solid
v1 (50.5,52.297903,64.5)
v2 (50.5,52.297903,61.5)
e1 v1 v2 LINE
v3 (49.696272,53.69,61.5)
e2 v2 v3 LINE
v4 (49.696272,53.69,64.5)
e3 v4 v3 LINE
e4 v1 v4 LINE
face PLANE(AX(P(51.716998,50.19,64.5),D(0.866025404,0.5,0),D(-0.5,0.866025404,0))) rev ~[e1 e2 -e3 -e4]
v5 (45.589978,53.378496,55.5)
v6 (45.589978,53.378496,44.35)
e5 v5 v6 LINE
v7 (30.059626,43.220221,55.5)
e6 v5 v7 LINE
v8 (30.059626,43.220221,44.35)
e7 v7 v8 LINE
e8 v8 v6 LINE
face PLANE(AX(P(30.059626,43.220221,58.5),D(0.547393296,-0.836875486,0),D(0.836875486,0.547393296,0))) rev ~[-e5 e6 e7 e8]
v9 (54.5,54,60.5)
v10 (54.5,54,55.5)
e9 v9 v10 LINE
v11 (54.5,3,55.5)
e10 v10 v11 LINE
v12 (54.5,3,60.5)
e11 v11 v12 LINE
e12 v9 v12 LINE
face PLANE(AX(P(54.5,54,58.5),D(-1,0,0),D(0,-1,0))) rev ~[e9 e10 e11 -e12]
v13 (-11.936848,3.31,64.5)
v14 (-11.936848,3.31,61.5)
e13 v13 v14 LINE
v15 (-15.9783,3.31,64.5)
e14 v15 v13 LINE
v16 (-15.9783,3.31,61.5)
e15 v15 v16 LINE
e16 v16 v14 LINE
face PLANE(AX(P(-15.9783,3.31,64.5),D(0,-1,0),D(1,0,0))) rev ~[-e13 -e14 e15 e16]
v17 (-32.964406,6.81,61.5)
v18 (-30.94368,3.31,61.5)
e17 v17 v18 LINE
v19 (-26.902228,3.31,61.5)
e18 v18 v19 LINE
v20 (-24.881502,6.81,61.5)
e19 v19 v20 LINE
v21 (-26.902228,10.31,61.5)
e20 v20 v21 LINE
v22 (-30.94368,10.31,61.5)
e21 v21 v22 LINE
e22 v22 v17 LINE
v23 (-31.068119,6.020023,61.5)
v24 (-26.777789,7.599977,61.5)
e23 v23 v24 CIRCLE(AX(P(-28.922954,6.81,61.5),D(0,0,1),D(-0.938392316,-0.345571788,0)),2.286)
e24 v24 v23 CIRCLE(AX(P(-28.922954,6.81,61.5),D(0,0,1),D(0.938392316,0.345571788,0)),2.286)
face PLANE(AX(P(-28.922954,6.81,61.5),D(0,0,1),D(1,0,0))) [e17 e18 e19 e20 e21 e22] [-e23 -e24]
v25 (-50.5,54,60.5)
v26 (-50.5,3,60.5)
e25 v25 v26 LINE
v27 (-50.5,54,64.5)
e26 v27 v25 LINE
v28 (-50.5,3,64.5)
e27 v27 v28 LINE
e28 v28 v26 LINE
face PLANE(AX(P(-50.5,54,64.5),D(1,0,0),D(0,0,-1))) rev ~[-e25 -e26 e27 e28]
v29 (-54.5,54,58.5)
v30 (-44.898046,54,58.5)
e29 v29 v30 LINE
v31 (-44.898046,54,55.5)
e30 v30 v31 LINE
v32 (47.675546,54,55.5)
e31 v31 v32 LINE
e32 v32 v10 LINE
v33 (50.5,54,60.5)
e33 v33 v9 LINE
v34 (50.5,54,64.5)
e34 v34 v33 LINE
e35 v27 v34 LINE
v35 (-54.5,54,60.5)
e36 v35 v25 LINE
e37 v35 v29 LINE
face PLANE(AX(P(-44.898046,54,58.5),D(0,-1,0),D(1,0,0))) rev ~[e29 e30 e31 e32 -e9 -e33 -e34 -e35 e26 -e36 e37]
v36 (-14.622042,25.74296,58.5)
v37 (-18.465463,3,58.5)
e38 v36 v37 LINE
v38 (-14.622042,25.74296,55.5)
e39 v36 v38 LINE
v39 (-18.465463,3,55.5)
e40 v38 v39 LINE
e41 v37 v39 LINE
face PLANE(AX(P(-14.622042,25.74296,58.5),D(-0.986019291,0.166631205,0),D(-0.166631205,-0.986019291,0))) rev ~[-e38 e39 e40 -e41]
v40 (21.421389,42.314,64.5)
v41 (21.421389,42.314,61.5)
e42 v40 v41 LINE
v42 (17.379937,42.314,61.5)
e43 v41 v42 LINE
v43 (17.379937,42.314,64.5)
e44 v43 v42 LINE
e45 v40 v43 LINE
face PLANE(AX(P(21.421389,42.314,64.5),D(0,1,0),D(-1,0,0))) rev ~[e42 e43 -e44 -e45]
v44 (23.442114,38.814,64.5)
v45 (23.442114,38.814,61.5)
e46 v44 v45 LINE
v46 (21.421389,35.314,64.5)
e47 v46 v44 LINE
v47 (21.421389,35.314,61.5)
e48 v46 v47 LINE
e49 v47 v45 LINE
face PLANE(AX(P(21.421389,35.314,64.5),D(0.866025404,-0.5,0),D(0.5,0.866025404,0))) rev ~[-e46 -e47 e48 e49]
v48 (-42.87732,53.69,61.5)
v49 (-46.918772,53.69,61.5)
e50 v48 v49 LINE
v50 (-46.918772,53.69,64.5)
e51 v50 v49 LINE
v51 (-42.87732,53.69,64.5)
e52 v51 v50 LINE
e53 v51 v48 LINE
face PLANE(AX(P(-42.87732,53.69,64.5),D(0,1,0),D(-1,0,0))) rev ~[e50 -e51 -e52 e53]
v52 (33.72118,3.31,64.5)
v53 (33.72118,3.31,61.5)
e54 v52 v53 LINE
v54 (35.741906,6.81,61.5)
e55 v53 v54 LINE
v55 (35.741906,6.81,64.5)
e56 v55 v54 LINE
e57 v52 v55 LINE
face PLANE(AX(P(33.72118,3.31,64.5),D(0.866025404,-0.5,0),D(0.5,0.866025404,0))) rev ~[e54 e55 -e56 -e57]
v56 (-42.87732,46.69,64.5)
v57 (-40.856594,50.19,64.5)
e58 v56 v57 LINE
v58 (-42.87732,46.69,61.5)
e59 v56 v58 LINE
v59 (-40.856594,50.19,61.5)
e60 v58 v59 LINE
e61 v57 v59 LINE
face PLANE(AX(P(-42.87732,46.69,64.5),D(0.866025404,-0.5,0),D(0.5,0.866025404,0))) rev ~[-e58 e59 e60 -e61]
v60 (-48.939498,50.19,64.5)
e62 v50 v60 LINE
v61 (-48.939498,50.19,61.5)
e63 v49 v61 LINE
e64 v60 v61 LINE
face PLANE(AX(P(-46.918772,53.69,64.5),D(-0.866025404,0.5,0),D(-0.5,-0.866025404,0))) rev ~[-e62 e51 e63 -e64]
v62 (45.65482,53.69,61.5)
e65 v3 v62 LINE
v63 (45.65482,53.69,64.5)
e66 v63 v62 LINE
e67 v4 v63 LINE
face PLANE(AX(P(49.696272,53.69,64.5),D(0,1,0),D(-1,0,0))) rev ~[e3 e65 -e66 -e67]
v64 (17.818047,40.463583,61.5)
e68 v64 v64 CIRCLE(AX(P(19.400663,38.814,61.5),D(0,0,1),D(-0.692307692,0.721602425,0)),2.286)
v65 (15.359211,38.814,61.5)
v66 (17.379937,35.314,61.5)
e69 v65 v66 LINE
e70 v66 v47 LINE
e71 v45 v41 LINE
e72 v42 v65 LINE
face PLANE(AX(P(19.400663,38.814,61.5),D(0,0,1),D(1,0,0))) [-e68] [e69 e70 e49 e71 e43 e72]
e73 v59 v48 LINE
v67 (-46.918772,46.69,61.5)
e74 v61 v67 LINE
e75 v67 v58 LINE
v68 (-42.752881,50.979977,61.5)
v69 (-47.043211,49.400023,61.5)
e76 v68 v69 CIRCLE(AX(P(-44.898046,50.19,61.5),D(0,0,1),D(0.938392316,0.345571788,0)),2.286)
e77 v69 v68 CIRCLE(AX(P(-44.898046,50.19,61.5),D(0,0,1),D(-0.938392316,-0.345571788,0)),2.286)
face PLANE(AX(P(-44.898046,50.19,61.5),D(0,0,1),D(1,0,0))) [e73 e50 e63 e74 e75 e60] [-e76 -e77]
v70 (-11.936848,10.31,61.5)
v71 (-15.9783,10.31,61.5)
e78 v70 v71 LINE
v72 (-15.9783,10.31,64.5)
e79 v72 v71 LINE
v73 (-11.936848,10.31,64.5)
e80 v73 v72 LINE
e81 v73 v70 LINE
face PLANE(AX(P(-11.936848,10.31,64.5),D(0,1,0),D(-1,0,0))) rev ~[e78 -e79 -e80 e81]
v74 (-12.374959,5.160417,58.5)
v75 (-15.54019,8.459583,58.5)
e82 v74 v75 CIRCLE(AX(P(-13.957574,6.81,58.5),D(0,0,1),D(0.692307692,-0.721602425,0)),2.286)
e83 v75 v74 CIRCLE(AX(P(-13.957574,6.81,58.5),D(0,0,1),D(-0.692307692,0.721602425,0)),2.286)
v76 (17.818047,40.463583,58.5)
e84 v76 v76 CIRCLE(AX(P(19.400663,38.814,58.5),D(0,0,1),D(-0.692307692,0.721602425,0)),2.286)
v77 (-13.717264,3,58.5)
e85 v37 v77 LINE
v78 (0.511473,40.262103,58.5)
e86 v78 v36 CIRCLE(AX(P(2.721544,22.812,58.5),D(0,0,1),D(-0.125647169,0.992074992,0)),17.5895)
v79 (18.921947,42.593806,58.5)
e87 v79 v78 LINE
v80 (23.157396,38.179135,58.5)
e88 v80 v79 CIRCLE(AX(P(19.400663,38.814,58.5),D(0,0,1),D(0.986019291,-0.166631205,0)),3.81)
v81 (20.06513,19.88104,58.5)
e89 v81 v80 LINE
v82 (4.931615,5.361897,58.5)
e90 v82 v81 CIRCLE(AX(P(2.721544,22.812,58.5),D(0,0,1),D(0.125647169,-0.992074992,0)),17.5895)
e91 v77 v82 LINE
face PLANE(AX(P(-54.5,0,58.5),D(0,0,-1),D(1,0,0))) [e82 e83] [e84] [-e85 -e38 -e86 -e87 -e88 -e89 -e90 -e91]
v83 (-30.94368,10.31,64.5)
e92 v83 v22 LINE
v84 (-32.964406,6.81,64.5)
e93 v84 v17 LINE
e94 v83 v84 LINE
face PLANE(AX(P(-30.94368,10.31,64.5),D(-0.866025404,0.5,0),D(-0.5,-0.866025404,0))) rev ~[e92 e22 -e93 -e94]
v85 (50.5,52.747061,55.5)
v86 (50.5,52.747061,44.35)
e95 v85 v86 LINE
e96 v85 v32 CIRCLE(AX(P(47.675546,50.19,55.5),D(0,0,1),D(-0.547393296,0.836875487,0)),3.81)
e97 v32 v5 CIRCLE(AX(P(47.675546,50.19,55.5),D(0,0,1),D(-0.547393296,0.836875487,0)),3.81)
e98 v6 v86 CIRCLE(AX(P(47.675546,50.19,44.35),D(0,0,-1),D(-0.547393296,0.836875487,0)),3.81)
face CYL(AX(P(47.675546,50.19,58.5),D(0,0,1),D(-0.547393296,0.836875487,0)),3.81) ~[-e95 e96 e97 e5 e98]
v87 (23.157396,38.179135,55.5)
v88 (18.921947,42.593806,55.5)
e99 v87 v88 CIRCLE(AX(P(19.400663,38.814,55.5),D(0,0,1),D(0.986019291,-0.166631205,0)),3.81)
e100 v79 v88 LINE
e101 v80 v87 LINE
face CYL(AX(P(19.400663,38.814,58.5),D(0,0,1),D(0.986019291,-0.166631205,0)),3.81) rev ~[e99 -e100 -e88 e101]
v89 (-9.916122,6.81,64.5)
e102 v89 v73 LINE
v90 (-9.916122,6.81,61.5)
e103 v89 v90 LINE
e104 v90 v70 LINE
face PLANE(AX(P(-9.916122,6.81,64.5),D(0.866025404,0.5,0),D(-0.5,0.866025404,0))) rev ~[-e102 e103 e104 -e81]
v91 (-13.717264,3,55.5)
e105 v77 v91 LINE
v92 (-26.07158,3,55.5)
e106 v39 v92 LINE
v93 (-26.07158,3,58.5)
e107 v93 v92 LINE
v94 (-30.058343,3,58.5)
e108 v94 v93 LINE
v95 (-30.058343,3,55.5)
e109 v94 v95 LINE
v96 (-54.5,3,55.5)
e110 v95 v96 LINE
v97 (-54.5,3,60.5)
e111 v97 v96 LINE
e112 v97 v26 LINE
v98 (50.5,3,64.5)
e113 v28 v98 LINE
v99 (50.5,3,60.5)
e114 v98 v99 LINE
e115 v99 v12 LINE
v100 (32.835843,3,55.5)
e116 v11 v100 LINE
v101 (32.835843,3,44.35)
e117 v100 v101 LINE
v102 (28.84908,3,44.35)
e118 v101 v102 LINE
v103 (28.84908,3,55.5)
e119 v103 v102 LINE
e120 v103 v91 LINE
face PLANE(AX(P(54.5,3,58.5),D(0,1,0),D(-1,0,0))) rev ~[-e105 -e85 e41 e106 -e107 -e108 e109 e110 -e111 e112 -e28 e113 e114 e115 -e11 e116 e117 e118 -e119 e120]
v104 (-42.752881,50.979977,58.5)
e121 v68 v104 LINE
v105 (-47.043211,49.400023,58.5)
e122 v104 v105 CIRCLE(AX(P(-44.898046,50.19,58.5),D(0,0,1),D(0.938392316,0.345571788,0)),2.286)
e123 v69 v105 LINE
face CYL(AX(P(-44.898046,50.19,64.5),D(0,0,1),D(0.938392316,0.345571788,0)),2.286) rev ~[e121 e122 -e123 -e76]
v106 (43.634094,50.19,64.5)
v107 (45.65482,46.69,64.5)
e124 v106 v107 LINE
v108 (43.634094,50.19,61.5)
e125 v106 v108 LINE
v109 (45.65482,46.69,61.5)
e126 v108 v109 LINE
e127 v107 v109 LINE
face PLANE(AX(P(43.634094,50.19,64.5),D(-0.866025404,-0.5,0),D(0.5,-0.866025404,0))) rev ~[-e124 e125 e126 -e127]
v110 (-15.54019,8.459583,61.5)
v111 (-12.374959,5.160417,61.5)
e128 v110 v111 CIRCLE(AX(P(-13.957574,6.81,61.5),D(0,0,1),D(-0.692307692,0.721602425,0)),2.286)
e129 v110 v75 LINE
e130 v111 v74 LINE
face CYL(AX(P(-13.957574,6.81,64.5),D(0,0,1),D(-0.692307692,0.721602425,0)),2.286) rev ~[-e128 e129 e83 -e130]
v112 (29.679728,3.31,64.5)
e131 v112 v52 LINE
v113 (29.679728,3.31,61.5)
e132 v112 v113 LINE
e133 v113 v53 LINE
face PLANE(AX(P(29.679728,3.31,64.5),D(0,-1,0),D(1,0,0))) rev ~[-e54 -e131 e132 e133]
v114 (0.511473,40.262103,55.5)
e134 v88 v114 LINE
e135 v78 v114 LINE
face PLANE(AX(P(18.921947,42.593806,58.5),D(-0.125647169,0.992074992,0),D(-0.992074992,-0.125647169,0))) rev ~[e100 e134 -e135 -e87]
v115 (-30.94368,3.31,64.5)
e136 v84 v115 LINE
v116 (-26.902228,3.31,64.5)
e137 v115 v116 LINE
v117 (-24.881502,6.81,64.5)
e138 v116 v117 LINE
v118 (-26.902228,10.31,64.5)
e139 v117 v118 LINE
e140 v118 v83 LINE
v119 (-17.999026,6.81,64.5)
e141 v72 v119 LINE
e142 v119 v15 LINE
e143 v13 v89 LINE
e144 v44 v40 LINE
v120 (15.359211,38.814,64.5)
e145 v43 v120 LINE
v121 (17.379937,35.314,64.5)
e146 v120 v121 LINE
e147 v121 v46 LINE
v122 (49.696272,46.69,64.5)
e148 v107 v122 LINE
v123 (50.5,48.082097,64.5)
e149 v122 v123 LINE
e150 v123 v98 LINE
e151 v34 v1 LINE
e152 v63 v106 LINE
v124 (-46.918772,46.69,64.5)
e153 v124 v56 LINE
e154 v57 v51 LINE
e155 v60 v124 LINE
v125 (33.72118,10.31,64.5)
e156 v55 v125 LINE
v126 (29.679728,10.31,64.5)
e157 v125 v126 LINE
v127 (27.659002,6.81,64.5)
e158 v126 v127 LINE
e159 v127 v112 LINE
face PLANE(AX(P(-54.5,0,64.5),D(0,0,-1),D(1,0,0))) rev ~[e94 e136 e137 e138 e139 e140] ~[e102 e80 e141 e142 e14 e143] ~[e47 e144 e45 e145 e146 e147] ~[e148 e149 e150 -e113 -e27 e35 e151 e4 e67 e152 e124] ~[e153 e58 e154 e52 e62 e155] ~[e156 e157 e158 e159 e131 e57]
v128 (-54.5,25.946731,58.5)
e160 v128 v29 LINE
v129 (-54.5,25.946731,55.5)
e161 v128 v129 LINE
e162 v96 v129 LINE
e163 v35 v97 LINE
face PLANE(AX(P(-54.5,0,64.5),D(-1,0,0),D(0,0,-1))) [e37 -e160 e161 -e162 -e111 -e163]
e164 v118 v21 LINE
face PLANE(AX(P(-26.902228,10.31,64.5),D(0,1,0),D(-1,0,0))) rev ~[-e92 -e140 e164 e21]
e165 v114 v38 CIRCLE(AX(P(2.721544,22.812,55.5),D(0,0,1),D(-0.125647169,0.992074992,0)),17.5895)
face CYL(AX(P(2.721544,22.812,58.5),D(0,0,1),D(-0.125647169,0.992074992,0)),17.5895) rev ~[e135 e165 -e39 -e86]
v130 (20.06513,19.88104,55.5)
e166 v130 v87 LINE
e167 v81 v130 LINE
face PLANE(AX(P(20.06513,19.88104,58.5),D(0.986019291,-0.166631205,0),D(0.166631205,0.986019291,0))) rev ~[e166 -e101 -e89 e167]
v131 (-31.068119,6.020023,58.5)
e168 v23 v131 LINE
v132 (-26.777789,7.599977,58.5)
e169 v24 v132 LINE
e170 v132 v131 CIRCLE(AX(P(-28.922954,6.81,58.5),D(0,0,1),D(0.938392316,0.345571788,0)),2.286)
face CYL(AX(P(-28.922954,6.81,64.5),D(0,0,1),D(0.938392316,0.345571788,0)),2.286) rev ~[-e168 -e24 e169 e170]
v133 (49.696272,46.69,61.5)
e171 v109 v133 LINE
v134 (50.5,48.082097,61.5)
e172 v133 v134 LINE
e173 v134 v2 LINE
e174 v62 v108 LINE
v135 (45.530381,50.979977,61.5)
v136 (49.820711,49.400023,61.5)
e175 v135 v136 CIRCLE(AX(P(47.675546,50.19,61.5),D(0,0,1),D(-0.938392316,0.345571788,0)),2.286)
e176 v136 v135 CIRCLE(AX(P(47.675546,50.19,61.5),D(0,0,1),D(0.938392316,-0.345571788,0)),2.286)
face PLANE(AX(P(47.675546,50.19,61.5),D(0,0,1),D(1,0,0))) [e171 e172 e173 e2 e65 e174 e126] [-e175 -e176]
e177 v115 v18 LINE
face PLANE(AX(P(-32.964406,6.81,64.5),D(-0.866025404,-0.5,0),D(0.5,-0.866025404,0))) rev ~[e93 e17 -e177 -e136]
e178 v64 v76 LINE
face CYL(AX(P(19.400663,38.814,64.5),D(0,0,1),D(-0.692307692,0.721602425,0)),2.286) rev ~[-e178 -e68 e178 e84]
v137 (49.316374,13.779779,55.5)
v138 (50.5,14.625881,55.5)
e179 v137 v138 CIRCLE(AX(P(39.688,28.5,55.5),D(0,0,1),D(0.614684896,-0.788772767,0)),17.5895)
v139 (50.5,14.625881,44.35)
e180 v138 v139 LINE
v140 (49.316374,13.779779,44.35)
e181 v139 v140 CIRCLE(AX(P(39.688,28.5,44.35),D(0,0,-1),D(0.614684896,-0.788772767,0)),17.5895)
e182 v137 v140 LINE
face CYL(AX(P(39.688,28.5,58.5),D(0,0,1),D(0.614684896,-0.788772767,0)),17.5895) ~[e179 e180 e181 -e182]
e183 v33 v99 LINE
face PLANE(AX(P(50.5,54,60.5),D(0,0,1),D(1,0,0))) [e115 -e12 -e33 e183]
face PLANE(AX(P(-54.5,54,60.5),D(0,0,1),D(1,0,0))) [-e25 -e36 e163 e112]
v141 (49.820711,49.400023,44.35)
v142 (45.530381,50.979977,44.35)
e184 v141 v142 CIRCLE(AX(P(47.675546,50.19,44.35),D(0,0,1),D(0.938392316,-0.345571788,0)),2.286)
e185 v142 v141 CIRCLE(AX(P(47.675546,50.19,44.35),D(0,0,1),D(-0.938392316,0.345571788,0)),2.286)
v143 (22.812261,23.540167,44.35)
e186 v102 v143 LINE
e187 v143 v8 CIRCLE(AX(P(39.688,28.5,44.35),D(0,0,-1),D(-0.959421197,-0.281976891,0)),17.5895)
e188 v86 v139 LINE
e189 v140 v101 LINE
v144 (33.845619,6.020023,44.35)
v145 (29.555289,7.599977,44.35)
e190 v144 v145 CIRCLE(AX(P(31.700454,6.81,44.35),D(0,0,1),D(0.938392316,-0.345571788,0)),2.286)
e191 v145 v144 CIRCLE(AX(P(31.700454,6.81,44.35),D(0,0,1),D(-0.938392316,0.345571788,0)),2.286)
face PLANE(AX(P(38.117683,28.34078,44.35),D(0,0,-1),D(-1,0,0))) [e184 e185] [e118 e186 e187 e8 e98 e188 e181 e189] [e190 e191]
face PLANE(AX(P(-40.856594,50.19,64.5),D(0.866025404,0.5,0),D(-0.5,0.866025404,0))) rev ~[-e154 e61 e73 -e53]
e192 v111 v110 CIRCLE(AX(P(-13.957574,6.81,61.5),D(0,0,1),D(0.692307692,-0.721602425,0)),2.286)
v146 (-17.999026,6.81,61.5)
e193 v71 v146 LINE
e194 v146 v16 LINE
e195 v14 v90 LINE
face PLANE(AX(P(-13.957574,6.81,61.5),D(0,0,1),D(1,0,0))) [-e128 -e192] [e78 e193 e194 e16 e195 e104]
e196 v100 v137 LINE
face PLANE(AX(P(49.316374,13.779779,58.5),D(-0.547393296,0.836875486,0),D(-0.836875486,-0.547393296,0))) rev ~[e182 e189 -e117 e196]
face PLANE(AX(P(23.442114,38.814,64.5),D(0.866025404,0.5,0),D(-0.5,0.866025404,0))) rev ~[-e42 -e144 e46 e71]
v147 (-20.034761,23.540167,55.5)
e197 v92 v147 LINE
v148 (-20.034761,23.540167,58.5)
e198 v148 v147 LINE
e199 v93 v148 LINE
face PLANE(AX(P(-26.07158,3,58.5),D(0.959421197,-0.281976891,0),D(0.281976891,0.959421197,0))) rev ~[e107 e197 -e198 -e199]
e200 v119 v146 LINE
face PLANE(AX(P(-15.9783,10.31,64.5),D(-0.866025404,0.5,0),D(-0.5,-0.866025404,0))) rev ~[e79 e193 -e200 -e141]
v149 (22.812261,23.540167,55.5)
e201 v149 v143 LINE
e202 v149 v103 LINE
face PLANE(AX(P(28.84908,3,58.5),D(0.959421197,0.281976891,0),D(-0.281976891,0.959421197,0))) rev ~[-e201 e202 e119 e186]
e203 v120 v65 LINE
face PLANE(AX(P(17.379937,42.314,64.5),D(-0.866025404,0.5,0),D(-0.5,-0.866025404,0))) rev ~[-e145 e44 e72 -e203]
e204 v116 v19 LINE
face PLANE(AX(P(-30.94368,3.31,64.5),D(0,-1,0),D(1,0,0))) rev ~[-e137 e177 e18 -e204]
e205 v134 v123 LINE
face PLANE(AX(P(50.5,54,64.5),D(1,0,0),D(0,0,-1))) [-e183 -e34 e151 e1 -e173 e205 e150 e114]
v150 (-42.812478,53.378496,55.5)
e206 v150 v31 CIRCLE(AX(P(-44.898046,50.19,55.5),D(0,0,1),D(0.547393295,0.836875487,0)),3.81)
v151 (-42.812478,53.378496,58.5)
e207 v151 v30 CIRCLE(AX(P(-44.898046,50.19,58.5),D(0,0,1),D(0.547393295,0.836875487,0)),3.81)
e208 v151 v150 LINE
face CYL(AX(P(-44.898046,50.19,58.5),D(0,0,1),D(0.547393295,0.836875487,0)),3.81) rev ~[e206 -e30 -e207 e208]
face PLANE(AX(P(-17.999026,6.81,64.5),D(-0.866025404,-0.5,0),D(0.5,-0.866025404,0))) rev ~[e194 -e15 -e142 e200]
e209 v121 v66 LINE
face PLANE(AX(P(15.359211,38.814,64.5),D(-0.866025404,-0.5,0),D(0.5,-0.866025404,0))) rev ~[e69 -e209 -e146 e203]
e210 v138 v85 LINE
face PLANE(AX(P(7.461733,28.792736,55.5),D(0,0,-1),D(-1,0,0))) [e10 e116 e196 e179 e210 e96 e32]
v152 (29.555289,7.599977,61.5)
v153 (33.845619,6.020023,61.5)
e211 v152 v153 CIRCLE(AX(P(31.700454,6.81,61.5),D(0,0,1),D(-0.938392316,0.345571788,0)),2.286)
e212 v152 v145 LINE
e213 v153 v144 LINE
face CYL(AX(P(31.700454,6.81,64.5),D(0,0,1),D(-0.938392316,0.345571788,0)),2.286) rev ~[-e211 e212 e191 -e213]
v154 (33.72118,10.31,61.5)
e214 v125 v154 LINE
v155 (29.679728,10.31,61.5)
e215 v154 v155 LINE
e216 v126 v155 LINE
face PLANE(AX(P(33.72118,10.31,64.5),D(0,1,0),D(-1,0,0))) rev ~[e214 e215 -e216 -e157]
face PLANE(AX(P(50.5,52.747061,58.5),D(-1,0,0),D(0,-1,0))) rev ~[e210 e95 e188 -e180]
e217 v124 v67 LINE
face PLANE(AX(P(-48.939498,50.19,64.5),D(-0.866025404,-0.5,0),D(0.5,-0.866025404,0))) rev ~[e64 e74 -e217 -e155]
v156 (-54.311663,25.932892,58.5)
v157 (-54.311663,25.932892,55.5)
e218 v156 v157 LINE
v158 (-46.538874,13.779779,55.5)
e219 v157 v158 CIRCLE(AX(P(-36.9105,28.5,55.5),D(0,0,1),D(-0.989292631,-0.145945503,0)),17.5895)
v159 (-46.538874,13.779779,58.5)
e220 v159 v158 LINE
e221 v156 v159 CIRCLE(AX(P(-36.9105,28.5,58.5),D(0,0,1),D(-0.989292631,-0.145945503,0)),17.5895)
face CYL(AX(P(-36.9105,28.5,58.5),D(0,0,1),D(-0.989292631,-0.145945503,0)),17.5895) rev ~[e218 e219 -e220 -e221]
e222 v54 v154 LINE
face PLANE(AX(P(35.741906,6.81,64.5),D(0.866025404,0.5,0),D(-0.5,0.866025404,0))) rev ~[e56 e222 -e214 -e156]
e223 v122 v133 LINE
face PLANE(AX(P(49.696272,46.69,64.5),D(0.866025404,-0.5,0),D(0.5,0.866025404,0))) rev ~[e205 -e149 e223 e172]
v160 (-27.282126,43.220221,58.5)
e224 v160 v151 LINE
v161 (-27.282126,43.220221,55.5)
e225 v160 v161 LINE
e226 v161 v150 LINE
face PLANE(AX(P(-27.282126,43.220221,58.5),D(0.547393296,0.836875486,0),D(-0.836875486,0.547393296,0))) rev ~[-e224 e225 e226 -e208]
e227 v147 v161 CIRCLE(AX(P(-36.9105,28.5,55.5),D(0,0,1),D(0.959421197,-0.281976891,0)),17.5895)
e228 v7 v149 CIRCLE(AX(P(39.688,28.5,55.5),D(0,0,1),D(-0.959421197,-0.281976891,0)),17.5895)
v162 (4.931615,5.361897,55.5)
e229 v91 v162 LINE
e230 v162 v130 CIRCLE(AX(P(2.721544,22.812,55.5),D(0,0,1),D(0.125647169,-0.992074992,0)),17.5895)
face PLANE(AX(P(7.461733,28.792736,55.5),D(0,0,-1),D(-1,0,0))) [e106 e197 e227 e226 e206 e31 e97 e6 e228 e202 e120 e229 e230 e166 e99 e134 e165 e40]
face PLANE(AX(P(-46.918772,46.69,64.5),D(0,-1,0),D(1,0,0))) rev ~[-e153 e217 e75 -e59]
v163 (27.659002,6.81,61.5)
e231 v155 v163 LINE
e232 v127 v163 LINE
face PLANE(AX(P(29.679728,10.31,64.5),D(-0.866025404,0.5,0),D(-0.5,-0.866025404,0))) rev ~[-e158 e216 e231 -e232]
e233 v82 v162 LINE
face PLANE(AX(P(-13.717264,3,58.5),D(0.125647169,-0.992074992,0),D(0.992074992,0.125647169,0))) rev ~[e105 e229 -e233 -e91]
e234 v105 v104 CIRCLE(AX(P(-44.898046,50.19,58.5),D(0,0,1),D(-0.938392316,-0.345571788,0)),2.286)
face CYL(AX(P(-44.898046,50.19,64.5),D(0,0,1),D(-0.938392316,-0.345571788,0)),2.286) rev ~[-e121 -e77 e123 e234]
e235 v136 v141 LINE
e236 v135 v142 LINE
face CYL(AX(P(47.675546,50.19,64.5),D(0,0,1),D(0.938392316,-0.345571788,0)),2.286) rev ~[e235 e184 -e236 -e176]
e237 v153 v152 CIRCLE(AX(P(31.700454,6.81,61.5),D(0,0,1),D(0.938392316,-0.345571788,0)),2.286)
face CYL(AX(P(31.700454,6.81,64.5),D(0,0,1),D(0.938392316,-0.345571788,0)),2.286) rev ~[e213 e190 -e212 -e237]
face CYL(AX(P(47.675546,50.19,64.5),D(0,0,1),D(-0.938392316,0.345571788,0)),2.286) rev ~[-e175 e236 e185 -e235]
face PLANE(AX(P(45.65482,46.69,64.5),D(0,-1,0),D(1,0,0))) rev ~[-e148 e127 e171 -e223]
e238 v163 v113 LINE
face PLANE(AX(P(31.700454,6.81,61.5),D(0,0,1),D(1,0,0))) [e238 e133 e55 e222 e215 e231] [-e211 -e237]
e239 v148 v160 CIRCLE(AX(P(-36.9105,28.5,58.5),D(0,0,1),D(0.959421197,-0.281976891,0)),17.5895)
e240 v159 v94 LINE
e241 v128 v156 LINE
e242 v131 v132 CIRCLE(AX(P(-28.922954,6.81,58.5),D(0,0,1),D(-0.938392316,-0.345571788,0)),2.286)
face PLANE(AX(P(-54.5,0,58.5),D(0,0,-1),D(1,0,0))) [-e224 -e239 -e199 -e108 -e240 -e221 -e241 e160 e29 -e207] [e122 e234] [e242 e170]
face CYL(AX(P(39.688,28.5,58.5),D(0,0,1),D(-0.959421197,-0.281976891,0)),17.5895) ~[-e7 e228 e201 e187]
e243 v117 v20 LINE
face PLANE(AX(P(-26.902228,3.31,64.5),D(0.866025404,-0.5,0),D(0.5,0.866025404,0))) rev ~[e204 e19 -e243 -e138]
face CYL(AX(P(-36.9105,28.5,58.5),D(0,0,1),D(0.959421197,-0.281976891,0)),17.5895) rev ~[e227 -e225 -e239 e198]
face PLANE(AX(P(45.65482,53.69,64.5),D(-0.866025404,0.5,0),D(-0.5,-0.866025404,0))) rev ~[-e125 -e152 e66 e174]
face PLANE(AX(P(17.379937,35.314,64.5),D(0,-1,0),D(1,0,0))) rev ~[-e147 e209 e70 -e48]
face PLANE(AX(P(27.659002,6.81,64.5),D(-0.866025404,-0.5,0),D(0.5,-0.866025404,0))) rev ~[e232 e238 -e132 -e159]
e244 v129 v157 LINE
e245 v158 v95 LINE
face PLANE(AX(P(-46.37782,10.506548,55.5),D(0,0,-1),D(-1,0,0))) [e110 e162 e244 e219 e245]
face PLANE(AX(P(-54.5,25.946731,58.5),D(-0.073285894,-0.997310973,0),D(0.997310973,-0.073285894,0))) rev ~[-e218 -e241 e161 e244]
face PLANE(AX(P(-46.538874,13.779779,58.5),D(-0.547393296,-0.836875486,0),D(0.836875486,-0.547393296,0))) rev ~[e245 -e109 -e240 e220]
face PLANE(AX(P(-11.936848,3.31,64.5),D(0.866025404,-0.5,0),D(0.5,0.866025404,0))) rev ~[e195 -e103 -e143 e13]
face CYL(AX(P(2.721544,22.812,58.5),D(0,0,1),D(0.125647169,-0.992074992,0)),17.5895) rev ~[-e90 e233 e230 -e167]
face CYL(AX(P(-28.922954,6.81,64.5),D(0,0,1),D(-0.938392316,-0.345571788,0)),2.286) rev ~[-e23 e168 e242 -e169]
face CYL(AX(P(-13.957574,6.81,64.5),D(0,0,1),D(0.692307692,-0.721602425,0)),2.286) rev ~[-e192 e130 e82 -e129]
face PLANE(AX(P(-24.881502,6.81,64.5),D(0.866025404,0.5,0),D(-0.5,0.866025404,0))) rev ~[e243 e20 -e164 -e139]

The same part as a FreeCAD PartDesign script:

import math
import FreeCAD as App
import Part
import Sketcher
Q = App.Units.Quantity

doc = App.newDocument("Part")
body = doc.addObject("PartDesign::Body", "Body")

sketch1 = body.newObject("Sketcher::SketchObject", "Sketch")
sketch1.AttachmentSupport = (doc.getObject("XZ_Plane"), [""])
sketch1.MapMode = "FlatFace"
sketch1.addGeometry([
    Part.LineSegment(App.Vector(-54.5, 58.5, 0), App.Vector(-54.5, 64.5, 0)),
    Part.LineSegment(App.Vector(-54.5, 64.5, 0), App.Vector(54.5, 64.5, 0)),
    Part.LineSegment(App.Vector(54.5, 64.5, 0), App.Vector(54.5, 58.5, 0)),
    Part.LineSegment(App.Vector(54.5, 58.5, 0), App.Vector(-54.5, 58.5, 0)),
], False)
sketch1.addConstraint([
    Sketcher.Constraint("Coincident", 0, 2, 1, 1),
    Sketcher.Constraint("Coincident", 1, 2, 2, 1),
    Sketcher.Constraint("Coincident", 2, 2, 3, 1),
    Sketcher.Constraint("Coincident", 3, 2, 0, 1),
    Sketcher.Constraint("Vertical", 0),
    Sketcher.Constraint("Horizontal", 1),
    Sketcher.Constraint("Vertical", 2),
    Sketcher.Constraint("Horizontal", 3),
    Sketcher.Constraint("DistanceX", 1, 1, 1, 2, Q("109 mm")),
    Sketcher.Constraint("DistanceY", 0, 1, 0, 2, Q("6 mm")),
    Sketcher.Constraint("DistanceX", 0, 2, -1, 1, Q("54.5 mm")),
    Sketcher.Constraint("DistanceY", -1, 1, 0, 2, Q("64.5 mm")),
])
pad1 = body.newObject("PartDesign::Pad", "Pad")
pad1.Profile = sketch1
pad1.Length = 54
pad1.Reversed = True

sketch2 = body.newObject("Sketcher::SketchObject", "Sketch001")
sketch2.AttachmentSupport = (doc.getObject("XY_Plane"), [""])
sketch2.MapMode = "FlatFace"
sketch2.AttachmentOffset = App.Placement(App.Vector(0, 0, 58.5), App.Rotation())
sketch2.addGeometry([
    Part.LineSegment(App.Vector(-44.898046, 54, 0), App.Vector(54.5, 54, 0)),
    Part.LineSegment(App.Vector(54.5, 54, 0), App.Vector(54.5, 3, 0)),
    Part.LineSegment(App.Vector(54.5, 3, 0), App.Vector(-13.717264, 3, 0)),
    Part.LineSegment(App.Vector(-13.717264, 3, 0), App.Vector(4.931615, 5.361897, 0)),
    Part.ArcOfCircle(Part.Circle(App.Vector(2.721544, 22.812, 0), App.Vector(0, 0, 1), 17.5895), math.radians(-82.781869), math.radians(-9.592008)),
    Part.LineSegment(App.Vector(20.06513, 19.88104, 0), App.Vector(23.157396, 38.179135, 0)),
    Part.ArcOfCircle(Part.Circle(App.Vector(19.400663, 38.814, 0), App.Vector(0, 0, 1), 3.81), math.radians(-9.592008), math.radians(97.218131)),
    Part.LineSegment(App.Vector(18.921947, 42.593806, 0), App.Vector(0.511473, 40.262103, 0)),
    Part.ArcOfCircle(Part.Circle(App.Vector(2.721544, 22.812, 0), App.Vector(0, 0, 1), 17.5895), math.radians(97.218131), math.radians(170.407992)),
    Part.LineSegment(App.Vector(-14.622042, 25.74296, 0), App.Vector(-18.465463, 3, 0)),
    Part.LineSegment(App.Vector(-18.465463, 3, 0), App.Vector(-26.07158, 3, 0)),
    Part.LineSegment(App.Vector(-26.07158, 3, 0), App.Vector(-20.034761, 23.540167, 0)),
    Part.ArcOfCircle(Part.Circle(App.Vector(-36.9105, 28.5, 0), App.Vector(0, 0, 1), 17.5895), math.radians(-16.378227), math.radians(56.811635)),
    Part.LineSegment(App.Vector(-27.282126, 43.220221, 0), App.Vector(-42.812478, 53.378496, 0)),
    Part.ArcOfCircle(Part.Circle(App.Vector(-44.898046, 50.19, 0), App.Vector(0, 0, 1), 3.81), math.radians(56.811635), math.radians(90)),
    Part.LineSegment(App.Vector(-54.5, 3, 0), App.Vector(-54.5, 25.946731, 0)),
    Part.LineSegment(App.Vector(-54.5, 25.946731, 0), App.Vector(-54.311663, 25.932892, 0)),
    Part.ArcOfCircle(Part.Circle(App.Vector(-36.9105, 28.5, 0), App.Vector(0, 0, 1), 17.5895), math.radians(-171.607965), math.radians(-123.188365)),
    Part.LineSegment(App.Vector(-46.538874, 13.779779, 0), App.Vector(-30.058343, 3, 0)),
    Part.LineSegment(App.Vector(-30.058343, 3, 0), App.Vector(-54.5, 3, 0)),
], False)
sketch2.addConstraint([
    Sketcher.Constraint("Coincident", 0, 2, 1, 1),
    Sketcher.Constraint("Coincident", 1, 2, 2, 1),
    Sketcher.Constraint("Coincident", 2, 2, 3, 1),
    Sketcher.Constraint("Tangent", 3, 2, 4, 1),
    Sketcher.Constraint("Tangent", 4, 2, 5, 1),
    Sketcher.Constraint("Tangent", 5, 2, 6, 1),
    Sketcher.Constraint("Tangent", 6, 2, 7, 1),
    Sketcher.Constraint("Tangent", 7, 2, 8, 1),
    Sketcher.Constraint("Tangent", 8, 2, 9, 1),
    Sketcher.Constraint("Coincident", 9, 2, 10, 1),
    Sketcher.Constraint("Coincident", 10, 2, 11, 1),
    Sketcher.Constraint("Tangent", 11, 2, 12, 1),
    Sketcher.Constraint("Tangent", 12, 2, 13, 1),
    Sketcher.Constraint("Tangent", 13, 2, 14, 1),
    Sketcher.Constraint("Tangent", 14, 2, 0, 1),
    Sketcher.Constraint("Coincident", 15, 2, 16, 1),
    Sketcher.Constraint("Coincident", 16, 2, 17, 1),
    Sketcher.Constraint("Tangent", 17, 2, 18, 1),
    Sketcher.Constraint("Coincident", 18, 2, 19, 1),
    Sketcher.Constraint("Coincident", 19, 2, 15, 1),
    Sketcher.Constraint("Horizontal", 0),
    Sketcher.Constraint("Vertical", 1),
    Sketcher.Constraint("Horizontal", 2),
    Sketcher.Constraint("Horizontal", 10),
    Sketcher.Constraint("Vertical", 15),
    Sketcher.Constraint("Horizontal", 19),
    Sketcher.Constraint("Coincident", 8, 3, 4, 3),
    Sketcher.Constraint("Coincident", 17, 3, 12, 3),
    Sketcher.Constraint("Equal", 4, 8),
    Sketcher.Constraint("Equal", 8, 12),
    Sketcher.Constraint("Equal", 6, 14),
    Sketcher.Constraint("Equal", 12, 17),
    Sketcher.Constraint("Symmetric", 1, 2, 19, 2, -2),
    Sketcher.Constraint("Parallel", 3, 7),
    Sketcher.Constraint("Parallel", 5, 9),
    Sketcher.Constraint("Parallel", 13, 18),
    Sketcher.Constraint("Horizontal", 2, 2, 9, 2),
    Sketcher.Constraint("Equal", 7, 13),
    Sketcher.Constraint("DistanceY", 1, 2, 1, 1, Q("51 mm")),
    Sketcher.Constraint("Radius", 6, Q("3.81 mm")),
    Sketcher.Constraint("DistanceY", -1, 1, 0, 2, Q("54 mm")),
    Sketcher.Constraint("DistanceY", -1, 1, 12, 3, Q("28.5 mm")),
    Sketcher.Constraint("DistanceX", -1, 1, 0, 2, Q("54.5 mm")),
    Sketcher.Constraint("Radius", 4, Q("17.5895 mm")),
    Sketcher.Constraint("DistanceY", -1, 1, 4, 3, Q("22.812 mm")),
    Sketcher.Constraint("DistanceY", -1, 1, 6, 3, Q("38.814 mm")),
    Sketcher.Constraint("DistanceY", 15, 1, 15, 2, Q("22.946731 mm")),
    Sketcher.Constraint("DistanceX", 12, 3, -1, 1, Q("36.9105 mm")),
    Sketcher.Constraint("DistanceX", 9, 2, 2, 2, Q("4.748198 mm")),
    Sketcher.Constraint("DistanceX", 11, 2, 9, 2, Q("1.569298 mm")),
    Sketcher.Constraint("DistanceX", 2, 2, 2, 1, Q("68.217264 mm")),
    Sketcher.Constraint("DistanceY", -1, 1, 16, 2, Q("25.932892 mm")),
])
pad2 = body.newObject("PartDesign::Pad", "Pad001")
pad2.Profile = sketch2
pad2.Length = 3
pad2.Reversed = True

sketch3 = body.newObject("Sketcher::SketchObject", "Sketch002")
sketch3.AttachmentSupport = (doc.getObject("XY_Plane"), [""])
sketch3.MapMode = "FlatFace"
sketch3.AttachmentOffset = App.Placement(App.Vector(0, 0, 58.5), App.Rotation())
sketch3.addGeometry([
    Part.LineSegment(App.Vector(32.835843, 3, 0), App.Vector(28.84908, 3, 0)),
    Part.LineSegment(App.Vector(28.84908, 3, 0), App.Vector(22.812261, 23.540167, 0)),
    Part.ArcOfCircle(Part.Circle(App.Vector(39.688, 28.5, 0), App.Vector(0, 0, 1), 17.5895), math.radians(123.188365), math.radians(196.378227)),
    Part.LineSegment(App.Vector(30.059626, 43.220221, 0), App.Vector(45.589978, 53.378496, 0)),
    Part.ArcOfCircle(Part.Circle(App.Vector(47.675546, 50.19, 0), App.Vector(0, 0, 1), 3.81), math.radians(42.15547), math.radians(123.188365)),
    Part.LineSegment(App.Vector(50.5, 52.747061, 0), App.Vector(50.5, 14.625881, 0)),
    Part.ArcOfCircle(Part.Circle(App.Vector(39.688, 28.5, 0), App.Vector(0, 0, 1), 17.5895), math.radians(-56.811635), math.radians(-52.070972)),
    Part.LineSegment(App.Vector(49.316374, 13.779779, 0), App.Vector(32.835843, 3, 0)),
], False)
sketch3.addConstraint([
    Sketcher.Constraint("Coincident", 0, 2, 1, 1),
    Sketcher.Constraint("Tangent", 1, 2, 2, 2),
    Sketcher.Constraint("Tangent", 2, 1, 3, 1),
    Sketcher.Constraint("Tangent", 3, 2, 4, 2),
    Sketcher.Constraint("Coincident", 4, 1, 5, 1),
    Sketcher.Constraint("Coincident", 5, 2, 6, 2),
    Sketcher.Constraint("Tangent", 6, 1, 7, 1),
    Sketcher.Constraint("Coincident", 7, 2, 0, 1),
    Sketcher.Constraint("Horizontal", 0),
    Sketcher.Constraint("Vertical", 5),
    Sketcher.Constraint("Coincident", 6, 3, 2, 3),
    Sketcher.Constraint("Equal", 2, 6),
    Sketcher.Constraint("Parallel", 3, 7),
    Sketcher.Constraint("Radius", 4, Q("3.81 mm")),
    Sketcher.Constraint("DistanceY", -1, 1, 0, 2, Q("3 mm")),
    Sketcher.Constraint("DistanceY", -1, 1, 2, 3, Q("28.5 mm")),
    Sketcher.Constraint("DistanceX", -1, 1, 4, 1, Q("50.5 mm")),
    Sketcher.Constraint("Radius", 2, Q("17.5895 mm")),
    Sketcher.Constraint("DistanceY", -1, 1, 4, 3, Q("50.19 mm")),
    Sketcher.Constraint("DistanceX", -1, 1, 2, 3, Q("39.688 mm")),
    Sketcher.Constraint("DistanceY", 5, 2, 5, 1, Q("38.12118 mm")),
    Sketcher.Constraint("DistanceX", 0, 2, 0, 1, Q("3.986762 mm")),
])
pad3 = body.newObject("PartDesign::Pad", "Pad002")
pad3.Profile = sketch3
pad3.Length = 14.15
pad3.Reversed = True

sketch4 = body.newObject("Sketcher::SketchObject", "Sketch003")
sketch4.AttachmentSupport = (doc.getObject("XY_Plane"), [""])
sketch4.MapMode = "FlatFace"
sketch4.AttachmentOffset = App.Placement(App.Vector(0, 0, 64.5), App.Rotation())
sketch4.addGeometry([
    Part.ArcOfCircle(Part.Circle(App.Vector(-44.898046, 50.19, 0), App.Vector(0, 0, 1), 2.286), math.radians(20.216704), math.radians(200.216704)),
    Part.ArcOfCircle(Part.Circle(App.Vector(-44.898046, 50.19, 0), App.Vector(0, 0, 1), 2.286), math.radians(-159.783296), math.radians(20.216704)),
    Part.ArcOfCircle(Part.Circle(App.Vector(-28.922954, 6.81, 0), App.Vector(0, 0, 1), 2.286), math.radians(-159.783296), math.radians(20.216704)),
    Part.ArcOfCircle(Part.Circle(App.Vector(-28.922954, 6.81, 0), App.Vector(0, 0, 1), 2.286), math.radians(20.216704), math.radians(200.216704)),
    Part.ArcOfCircle(Part.Circle(App.Vector(-13.957574, 6.81, 0), App.Vector(0, 0, 1), 2.286), math.radians(133.813061), math.radians(313.813061)),
    Part.ArcOfCircle(Part.Circle(App.Vector(-13.957574, 6.81, 0), App.Vector(0, 0, 1), 2.286), math.radians(-46.186939), math.radians(133.813061)),
    Part.Circle(App.Vector(19.400663, 38.814, 0), App.Vector(0, 0, 1), 2.286),
    Part.ArcOfCircle(Part.Circle(App.Vector(31.700454, 6.81, 0), App.Vector(0, 0, 1), 2.286), math.radians(159.783296), math.radians(339.783296)),
    Part.ArcOfCircle(Part.Circle(App.Vector(31.700454, 6.81, 0), App.Vector(0, 0, 1), 2.286), math.radians(-20.216704), math.radians(159.783296)),
    Part.ArcOfCircle(Part.Circle(App.Vector(47.675546, 50.19, 0), App.Vector(0, 0, 1), 2.286), math.radians(-20.216704), math.radians(159.783296)),
    Part.ArcOfCircle(Part.Circle(App.Vector(47.675546, 50.19, 0), App.Vector(0, 0, 1), 2.286), math.radians(159.783296), math.radians(339.783296)),
], False)
sketch4.addConstraint([
    Sketcher.Constraint("Tangent", 0, 1, 1, 2),
    Sketcher.Constraint("Coincident", 1, 1, 0, 2),
    Sketcher.Constraint("Tangent", 2, 1, 3, 2),
    Sketcher.Constraint("Coincident", 3, 1, 2, 2),
    Sketcher.Constraint("Tangent", 4, 1, 5, 2),
    Sketcher.Constraint("Coincident", 5, 1, 4, 2),
    Sketcher.Constraint("Tangent", 7, 1, 8, 2),
    Sketcher.Constraint("Coincident", 8, 1, 7, 2),
    Sketcher.Constraint("Tangent", 9, 1, 10, 2),
    Sketcher.Constraint("Coincident", 10, 1, 9, 2),
    Sketcher.Constraint("Equal", 1, 2),
    Sketcher.Constraint("Equal", 3, 4),
    Sketcher.Constraint("Equal", 5, 6),
    Sketcher.Constraint("Equal", 6, 7),
    Sketcher.Constraint("Equal", 8, 9),
    Sketcher.Constraint("Horizontal", 3, 3, 4, 3),
    Sketcher.Constraint("Horizontal", 5, 3, 7, 3),
    Sketcher.Constraint("Horizontal", 1, 3, 9, 3),
    Sketcher.Constraint("Horizontal", 3, 1, 7, 1),
    Sketcher.Constraint("Horizontal", 2, 1, 8, 1),
    Sketcher.Constraint("Horizontal", 1, 1, 9, 1),
    Sketcher.Constraint("Horizontal", 0, 1, 10, 1),
    Sketcher.Constraint("Diameter", 6, Q("4.572 mm")),
    Sketcher.Constraint("DistanceY", -1, 1, 0, 3, Q("50.19 mm")),
    Sketcher.Constraint("DistanceY", -1, 1, 2, 3, Q("6.81 mm")),
    Sketcher.Constraint("DistanceY", 2, 1, 1, 1, Q("43.38 mm")),
    Sketcher.Constraint("DistanceY", 7, 1, 10, 1, Q("43.38 mm")),
    Sketcher.Constraint("DistanceY", -1, 1, 6, 3, Q("38.814 mm")),
    Sketcher.Constraint("DistanceX", 3, 1, 4, 1, Q("11.237599 mm")),
    Sketcher.Constraint("DistanceX", 0, 1, -1, 1, Q("42.752881 mm")),
    Sketcher.Constraint("DistanceX", 1, 1, -1, 1, Q("47.043211 mm")),
    Sketcher.Constraint("DistanceX", 2, 1, -1, 1, Q("31.068119 mm")),
    Sketcher.Constraint("DistanceX", 5, 1, -1, 1, Q("12.374959 mm")),
    Sketcher.Constraint("DistanceX", -1, 1, 7, 1, Q("29.555289 mm")),
    Sketcher.Constraint("DistanceX", -1, 1, 9, 1, Q("49.820711 mm")),
    Sketcher.Constraint("DistanceX", 3, 3, 4, 3, Q("14.965379 mm")),
    Sketcher.Constraint("DistanceX", 0, 3, 6, 3, Q("64.298709 mm")),
    Sketcher.Constraint("DistanceX", 6, 3, 7, 3, Q("12.299791 mm")),
])
pocket1 = body.newObject("PartDesign::Pocket", "Pocket")
pocket1.Profile = sketch4
pocket1.Length = 23

sketch5 = body.newObject("Sketcher::SketchObject", "Sketch004")
sketch5.AttachmentSupport = (doc.getObject("XY_Plane"), [""])
sketch5.MapMode = "FlatFace"
sketch5.AttachmentOffset = App.Placement(App.Vector(0, 0, 64.5), App.Rotation())
sketch5.addGeometry([
    Part.LineSegment(App.Vector(-40.856594, 50.19, 0), App.Vector(-42.87732, 53.69, 0)),
    Part.LineSegment(App.Vector(-42.87732, 53.69, 0), App.Vector(-46.918772, 53.69, 0)),
    Part.LineSegment(App.Vector(-46.918772, 53.69, 0), App.Vector(-48.939498, 50.19, 0)),
    Part.LineSegment(App.Vector(-48.939498, 50.19, 0), App.Vector(-46.918772, 46.69, 0)),
    Part.LineSegment(App.Vector(-46.918772, 46.69, 0), App.Vector(-42.87732, 46.69, 0)),
    Part.LineSegment(App.Vector(-42.87732, 46.69, 0), App.Vector(-40.856594, 50.19, 0)),
    Part.LineSegment(App.Vector(51.716998, 50.19, 0), App.Vector(49.696272, 53.69, 0)),
    Part.LineSegment(App.Vector(49.696272, 53.69, 0), App.Vector(45.65482, 53.69, 0)),
    Part.LineSegment(App.Vector(45.65482, 53.69, 0), App.Vector(43.634094, 50.19, 0)),
    Part.LineSegment(App.Vector(43.634094, 50.19, 0), App.Vector(45.65482, 46.69, 0)),
    Part.LineSegment(App.Vector(45.65482, 46.69, 0), App.Vector(49.696272, 46.69, 0)),
    Part.LineSegment(App.Vector(49.696272, 46.69, 0), App.Vector(51.716998, 50.19, 0)),
    Part.LineSegment(App.Vector(35.741906, 6.81, 0), App.Vector(33.72118, 10.31, 0)),
    Part.LineSegment(App.Vector(33.72118, 10.31, 0), App.Vector(29.679728, 10.31, 0)),
    Part.LineSegment(App.Vector(29.679728, 10.31, 0), App.Vector(27.659002, 6.81, 0)),
    Part.LineSegment(App.Vector(27.659002, 6.81, 0), App.Vector(29.679728, 3.31, 0)),
    Part.LineSegment(App.Vector(29.679728, 3.31, 0), App.Vector(33.72118, 3.31, 0)),
    Part.LineSegment(App.Vector(33.72118, 3.31, 0), App.Vector(35.741906, 6.81, 0)),
    Part.LineSegment(App.Vector(-9.916122, 6.81, 0), App.Vector(-11.936848, 10.31, 0)),
    Part.LineSegment(App.Vector(-11.936848, 10.31, 0), App.Vector(-15.9783, 10.31, 0)),
    Part.LineSegment(App.Vector(-15.9783, 10.31, 0), App.Vector(-17.999026, 6.81, 0)),
    Part.LineSegment(App.Vector(-17.999026, 6.81, 0), App.Vector(-15.9783, 3.31, 0)),
    Part.LineSegment(App.Vector(-15.9783, 3.31, 0), App.Vector(-11.936848, 3.31, 0)),
    Part.LineSegment(App.Vector(-11.936848, 3.31, 0), App.Vector(-9.916122, 6.81, 0)),
    Part.LineSegment(App.Vector(23.442114, 38.814, 0), App.Vector(21.421389, 42.314, 0)),
    Part.LineSegment(App.Vector(21.421389, 42.314, 0), App.Vector(17.379937, 42.314, 0)),
    Part.LineSegment(App.Vector(17.379937, 42.314, 0), App.Vector(15.359211, 38.814, 0)),
    Part.LineSegment(App.Vector(15.359211, 38.814, 0), App.Vector(17.379937, 35.314, 0)),
    Part.LineSegment(App.Vector(17.379937, 35.314, 0), App.Vector(21.421389, 35.314, 0)),
    Part.LineSegment(App.Vector(21.421389, 35.314, 0), App.Vector(23.442114, 38.814, 0)),
    Part.LineSegment(App.Vector(-24.881502, 6.81, 0), App.Vector(-26.902228, 10.31, 0)),
    Part.LineSegment(App.Vector(-26.902228, 10.31, 0), App.Vector(-30.94368, 10.31, 0)),
    Part.LineSegment(App.Vector(-30.94368, 10.31, 0), App.Vector(-32.964406, 6.81, 0)),
    Part.LineSegment(App.Vector(-32.964406, 6.81, 0), App.Vector(-30.94368, 3.31, 0)),
    Part.LineSegment(App.Vector(-30.94368, 3.31, 0), App.Vector(-26.902228, 3.31, 0)),
    Part.LineSegment(App.Vector(-26.902228, 3.31, 0), App.Vector(-24.881502, 6.81, 0)),
], False)
sketch5.addConstraint([
    Sketcher.Constraint("Coincident", 0, 2, 1, 1),
    Sketcher.Constraint("Coincident", 1, 2, 2, 1),
    Sketcher.Constraint("Coincident", 2, 2, 3, 1),
    Sketcher.Constraint("Coincident", 3, 2, 4, 1),
    Sketcher.Constraint("Coincident", 4, 2, 5, 1),
    Sketcher.Constraint("Coincident", 5, 2, 0, 1),
    Sketcher.Constraint("Coincident", 6, 2, 7, 1),
    Sketcher.Constraint("Coincident", 7, 2, 8, 1),
    Sketcher.Constraint("Coincident", 8, 2, 9, 1),
    Sketcher.Constraint("Coincident", 9, 2, 10, 1),
    Sketcher.Constraint("Coincident", 10, 2, 11, 1),
    Sketcher.Constraint("Coincident", 11, 2, 6, 1),
    Sketcher.Constraint("Coincident", 12, 2, 13, 1),
    Sketcher.Constraint("Coincident", 13, 2, 14, 1),
    Sketcher.Constraint("Coincident", 14, 2, 15, 1),
    Sketcher.Constraint("Coincident", 15, 2, 16, 1),
    Sketcher.Constraint("Coincident", 16, 2, 17, 1),
    Sketcher.Constraint("Coincident", 17, 2, 12, 1),
    Sketcher.Constraint("Coincident", 18, 2, 19, 1),
    Sketcher.Constraint("Coincident", 19, 2, 20, 1),
    Sketcher.Constraint("Coincident", 20, 2, 21, 1),
    Sketcher.Constraint("Coincident", 21, 2, 22, 1),
    Sketcher.Constraint("Coincident", 22, 2, 23, 1),
    Sketcher.Constraint("Coincident", 23, 2, 18, 1),
    Sketcher.Constraint("Coincident", 24, 2, 25, 1),
    Sketcher.Constraint("Coincident", 25, 2, 26, 1),
    Sketcher.Constraint("Coincident", 26, 2, 27, 1),
    Sketcher.Constraint("Coincident", 27, 2, 28, 1),
    Sketcher.Constraint("Coincident", 28, 2, 29, 1),
    Sketcher.Constraint("Coincident", 29, 2, 24, 1),
    Sketcher.Constraint("Coincident", 30, 2, 31, 1),
    Sketcher.Constraint("Coincident", 31, 2, 32, 1),
    Sketcher.Constraint("Coincident", 32, 2, 33, 1),
    Sketcher.Constraint("Coincident", 33, 2, 34, 1),
    Sketcher.Constraint("Coincident", 34, 2, 35, 1),
    Sketcher.Constraint("Coincident", 35, 2, 30, 1),
    Sketcher.Constraint("Horizontal", 1),
    Sketcher.Constraint("Horizontal", 4),
    Sketcher.Constraint("Horizontal", 7),
    Sketcher.Constraint("Horizontal", 10),
    Sketcher.Constraint("Horizontal", 13),
    Sketcher.Constraint("Horizontal", 16),
    Sketcher.Constraint("Horizontal", 19),
    Sketcher.Constraint("Horizontal", 22),
    Sketcher.Constraint("Horizontal", 25),
    Sketcher.Constraint("Horizontal", 28),
    Sketcher.Constraint("Horizontal", 31),
    Sketcher.Constraint("Horizontal", 34),
    Sketcher.Constraint("Parallel", 0, 3),
    Sketcher.Constraint("Parallel", 2, 5),
    Sketcher.Constraint("Parallel", 3, 6),
    Sketcher.Constraint("Parallel", 5, 8),
    Sketcher.Constraint("Parallel", 6, 9),
    Sketcher.Constraint("Parallel", 8, 11),
    Sketcher.Constraint("Parallel", 9, 12),
    Sketcher.Constraint("Parallel", 11, 14),
    Sketcher.Constraint("Parallel", 12, 15),
    Sketcher.Constraint("Parallel", 14, 17),
    Sketcher.Constraint("Parallel", 15, 18),
    Sketcher.Constraint("Parallel", 17, 20),
    Sketcher.Constraint("Parallel", 18, 21),
    Sketcher.Constraint("Parallel", 20, 23),
    Sketcher.Constraint("Parallel", 21, 24),
    Sketcher.Constraint("Parallel", 23, 26),
    Sketcher.Constraint("Parallel", 24, 27),
    Sketcher.Constraint("Parallel", 26, 29),
    Sketcher.Constraint("Parallel", 27, 30),
    Sketcher.Constraint("Parallel", 29, 32),
    Sketcher.Constraint("Parallel", 30, 33),
    Sketcher.Constraint("Parallel", 32, 35),
    Sketcher.Constraint("Horizontal", 2, 2, 5, 2),
    Sketcher.Constraint("Horizontal", 1, 2, 6, 2),
    Sketcher.Constraint("Horizontal", 5, 2, 8, 2),
    Sketcher.Constraint("Horizontal", 4, 2, 9, 2),
    Sketcher.Constraint("Horizontal", 8, 2, 11, 2),
    Sketcher.Constraint("Horizontal", 14, 2, 17, 2),
    Sketcher.Constraint("Horizontal", 13, 2, 18, 2),
    Sketcher.Constraint("Horizontal", 17, 2, 20, 2),
    Sketcher.Constraint("Horizontal", 16, 2, 21, 2),
    Sketcher.Constraint("Horizontal", 20, 2, 23, 2),
    Sketcher.Constraint("Horizontal", 26, 2, 29, 2),
    Sketcher.Constraint("Horizontal", 19, 2, 30, 2),
    Sketcher.Constraint("Horizontal", 23, 2, 32, 2),
    Sketcher.Constraint("Horizontal", 22, 2, 33, 2),
    Sketcher.Constraint("Horizontal", 32, 2, 35, 2),
    Sketcher.Constraint("Vertical", 1, 2, 3, 2),
    Sketcher.Constraint("Vertical", 0, 2, 4, 2),
    Sketcher.Constraint("Vertical", 13, 2, 15, 2),
    Sketcher.Constraint("Vertical", 25, 2, 27, 2),
    Sketcher.Constraint("Equal", 4, 7),
    Sketcher.Constraint("Equal", 10, 13),
    Sketcher.Constraint("Equal", 16, 19),
    Sketcher.Constraint("Equal", 22, 25),
    Sketcher.Constraint("Equal", 28, 31),
    Sketcher.Constraint("Equal", 11, 12),
    Sketcher.Constraint("Equal", 23, 24),
    Sketcher.Constraint("Angle", 0, Q("120 deg")),
    Sketcher.Constraint("DistanceY", 3, 2, 1, 2, Q("7 mm")),
    Sketcher.Constraint("DistanceY", -1, 1, 0, 2, Q("53.69 mm")),
    Sketcher.Constraint("DistanceY", -1, 1, 12, 2, Q("10.31 mm")),
    Sketcher.Constraint("DistanceX", -1, 1, 11, 2, Q("51.716998 mm")),
    Sketcher.Constraint("DistanceX", -1, 1, 14, 2, Q("27.659002 mm")),
    Sketcher.Constraint("DistanceY", -1, 1, 24, 2, Q("42.314 mm")),
    Sketcher.Constraint("DistanceX", 1, 2, 1, 1, Q("4.041452 mm")),
    Sketcher.Constraint("DistanceX", 2, 2, -1, 1, Q("48.939498 mm")),
    Sketcher.Constraint("DistanceX", 19, 2, -1, 1, Q("15.9783 mm")),
    Sketcher.Constraint("DistanceX", 35, 2, -1, 1, Q("24.881502 mm")),
    Sketcher.Constraint("DistanceX", -1, 1, 24, 2, Q("21.421389 mm")),
])
pocket2 = body.newObject("PartDesign::Pocket", "Pocket001")
pocket2.Profile = sketch5
pocket2.Length = 3

sketch6 = body.newObject("Sketcher::SketchObject", "Sketch005")
sketch6.AttachmentSupport = (doc.getObject("YZ_Plane"), [""])
sketch6.MapMode = "FlatFace"
sketch6.AttachmentOffset = App.Placement(App.Vector(0, 0, -54.5), App.Rotation())
sketch6.addGeometry([
    Part.LineSegment(App.Vector(3, 58.5, 0), App.Vector(0, 58.5, 0)),
    Part.LineSegment(App.Vector(0, 58.5, 0), App.Vector(0, 64.5, 0)),
    Part.LineSegment(App.Vector(0, 64.5, 0), App.Vector(3, 64.5, 0)),
    Part.LineSegment(App.Vector(3, 64.5, 0), App.Vector(3, 58.5, 0)),
], False)
sketch6.addConstraint([
    Sketcher.Constraint("Coincident", 0, 2, 1, 1),
    Sketcher.Constraint("Coincident", 1, 2, 2, 1),
    Sketcher.Constraint("Coincident", 2, 2, 3, 1),
    Sketcher.Constraint("Coincident", 3, 2, 0, 1),
    Sketcher.Constraint("Horizontal", 0),
    Sketcher.Constraint("Vertical", 1),
    Sketcher.Constraint("Horizontal", 2),
    Sketcher.Constraint("Vertical", 3),
    Sketcher.Constraint("PointOnObject", 0, 2, -2),
    Sketcher.Constraint("DistanceX", 0, 2, 0, 1, Q("3 mm")),
    Sketcher.Constraint("DistanceY", 1, 1, 1, 2, Q("6 mm")),
    Sketcher.Constraint("DistanceY", -1, 1, 0, 2, Q("58.5 mm")),
])
pocket3 = body.newObject("PartDesign::Pocket", "Pocket002")
pocket3.Profile = sketch6
pocket3.Length = 123
pocket3.Reversed = True

sketch7 = body.newObject("Sketcher::SketchObject", "Sketch006")
sketch7.AttachmentSupport = (doc.getObject("XZ_Plane"), [""])
sketch7.MapMode = "FlatFace"
sketch7.AttachmentOffset = App.Placement(App.Vector(0, 0, -54), App.Rotation())
sketch7.addGeometry([
    Part.LineSegment(App.Vector(-54.5, 60.5, 0), App.Vector(-54.5, 64.5, 0)),
    Part.LineSegment(App.Vector(-54.5, 64.5, 0), App.Vector(-50.5, 64.5, 0)),
    Part.LineSegment(App.Vector(-50.5, 64.5, 0), App.Vector(-50.5, 60.5, 0)),
    Part.LineSegment(App.Vector(-50.5, 60.5, 0), App.Vector(-54.5, 60.5, 0)),
    Part.LineSegment(App.Vector(50.5, 60.5, 0), App.Vector(50.5, 64.5, 0)),
    Part.LineSegment(App.Vector(50.5, 64.5, 0), App.Vector(54.5, 64.5, 0)),
    Part.LineSegment(App.Vector(54.5, 64.5, 0), App.Vector(54.5, 60.5, 0)),
    Part.LineSegment(App.Vector(54.5, 60.5, 0), App.Vector(50.5, 60.5, 0)),
], False)
sketch7.addConstraint([
    Sketcher.Constraint("Coincident", 0, 2, 1, 1),
    Sketcher.Constraint("Coincident", 1, 2, 2, 1),
    Sketcher.Constraint("Coincident", 2, 2, 3, 1),
    Sketcher.Constraint("Coincident", 3, 2, 0, 1),
    Sketcher.Constraint("Coincident", 4, 2, 5, 1),
    Sketcher.Constraint("Coincident", 5, 2, 6, 1),
    Sketcher.Constraint("Coincident", 6, 2, 7, 1),
    Sketcher.Constraint("Coincident", 7, 2, 4, 1),
    Sketcher.Constraint("Vertical", 0),
    Sketcher.Constraint("Horizontal", 1),
    Sketcher.Constraint("Vertical", 2),
    Sketcher.Constraint("Horizontal", 3),
    Sketcher.Constraint("Vertical", 4),
    Sketcher.Constraint("Horizontal", 5),
    Sketcher.Constraint("Vertical", 6),
    Sketcher.Constraint("Horizontal", 7),
    Sketcher.Constraint("Symmetric", 1, 2, 4, 2, -2),
    Sketcher.Constraint("Symmetric", 3, 2, 6, 2, -2),
    Sketcher.Constraint("Equal", 7, 0),
    Sketcher.Constraint("DistanceX", 1, 1, 1, 2, Q("4 mm")),
    Sketcher.Constraint("DistanceX", 1, 2, 4, 2, Q("101 mm")),
    Sketcher.Constraint("DistanceY", -1, 1, 0, 2, Q("64.5 mm")),
])
pocket4 = body.newObject("PartDesign::Pocket", "Pocket003")
pocket4.Profile = sketch7
pocket4.Length = 86
pocket4.Reversed = True

doc.recompute()
